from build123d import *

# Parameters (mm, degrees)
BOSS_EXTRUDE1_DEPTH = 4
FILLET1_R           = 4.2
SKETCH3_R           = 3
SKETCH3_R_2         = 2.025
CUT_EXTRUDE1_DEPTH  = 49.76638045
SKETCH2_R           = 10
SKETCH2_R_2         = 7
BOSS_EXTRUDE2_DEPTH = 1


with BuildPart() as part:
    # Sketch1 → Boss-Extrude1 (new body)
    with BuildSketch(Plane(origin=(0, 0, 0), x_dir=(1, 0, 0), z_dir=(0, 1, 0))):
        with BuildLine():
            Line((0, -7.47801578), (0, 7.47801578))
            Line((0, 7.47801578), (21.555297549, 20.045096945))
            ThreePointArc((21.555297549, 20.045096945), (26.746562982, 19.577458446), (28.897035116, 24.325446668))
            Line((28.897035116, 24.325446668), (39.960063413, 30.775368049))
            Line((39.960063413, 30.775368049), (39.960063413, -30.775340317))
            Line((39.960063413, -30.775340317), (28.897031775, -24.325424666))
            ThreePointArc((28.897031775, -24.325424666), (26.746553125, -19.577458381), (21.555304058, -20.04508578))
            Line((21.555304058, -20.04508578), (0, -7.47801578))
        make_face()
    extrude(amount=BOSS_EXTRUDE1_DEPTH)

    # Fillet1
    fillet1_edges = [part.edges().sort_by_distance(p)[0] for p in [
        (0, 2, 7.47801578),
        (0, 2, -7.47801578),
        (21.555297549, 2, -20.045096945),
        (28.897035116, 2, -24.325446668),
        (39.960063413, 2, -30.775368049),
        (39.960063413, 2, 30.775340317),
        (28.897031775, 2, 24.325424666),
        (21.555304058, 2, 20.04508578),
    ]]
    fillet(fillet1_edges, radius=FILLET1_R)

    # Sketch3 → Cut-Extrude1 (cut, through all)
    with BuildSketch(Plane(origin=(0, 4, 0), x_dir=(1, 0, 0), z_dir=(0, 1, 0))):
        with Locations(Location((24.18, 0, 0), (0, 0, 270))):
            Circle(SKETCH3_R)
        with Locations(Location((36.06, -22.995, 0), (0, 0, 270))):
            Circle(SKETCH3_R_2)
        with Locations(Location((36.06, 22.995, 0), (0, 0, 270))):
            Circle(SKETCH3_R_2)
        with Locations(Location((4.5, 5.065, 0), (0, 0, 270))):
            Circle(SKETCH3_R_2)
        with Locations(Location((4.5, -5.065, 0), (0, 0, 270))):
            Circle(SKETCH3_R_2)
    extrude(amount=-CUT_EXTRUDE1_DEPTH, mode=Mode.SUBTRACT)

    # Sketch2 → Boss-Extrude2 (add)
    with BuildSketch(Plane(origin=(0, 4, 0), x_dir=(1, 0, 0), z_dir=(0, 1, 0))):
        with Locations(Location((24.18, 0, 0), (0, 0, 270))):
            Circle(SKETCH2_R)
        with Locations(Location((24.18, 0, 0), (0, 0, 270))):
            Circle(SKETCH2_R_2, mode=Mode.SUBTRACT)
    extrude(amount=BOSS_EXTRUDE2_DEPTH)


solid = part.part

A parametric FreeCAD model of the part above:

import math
import FreeCAD as App
import Part
import Sketcher

V = App.Vector


def edges_at(feature, points):
    """Names of the edges that pass closest to the given points."""
    edges = feature.Shape.Edges
    near = lambda p: min(range(len(edges)), key=lambda i: edges[i].distToShape(Part.Vertex(*p))[0])
    return sorted({f"Edge{near(p) + 1}" for p in points})

doc = App.newDocument("Part")
body = doc.addObject("PartDesign::Body", "Body")

# Sketch on XZ plane
sketch1 = body.newObject("Sketcher::SketchObject", "Sketch")
sketch1.AttachmentSupport = (doc.getObject("XZ_Plane"), [""])
sketch1.MapMode = "FlatFace"
sketch1.addGeometry(Part.LineSegment(V(0, -7.5, 0), V(0, 7.5, 0)), False)
sketch1.addGeometry(Part.LineSegment(V(0, 7.5, 0), V(21.6, 20, 0)), False)
sketch1.addGeometry(Part.ArcOfCircle(Part.Circle(V(24.5, 23.5, 0), V(0, 0, 1), 4.5), math.radians(-131), math.radians(11)), False)
sketch1.addGeometry(Part.LineSegment(V(28.9, 24.3, 0), V(40, 30.8, 0)), False)
sketch1.addGeometry(Part.LineSegment(V(40, 30.8, 0), V(40, -30.8, 0)), False)
sketch1.addGeometry(Part.LineSegment(V(40, -30.8, 0), V(28.9, -24.3, 0)), False)
sketch1.addGeometry(Part.ArcOfCircle(Part.Circle(V(24.5, -23.5, 0), V(0, 0, 1), 4.5), math.radians(-11), math.radians(131)), False)
sketch1.addGeometry(Part.LineSegment(V(21.6, -20, 0), V(0, -7.5, 0)), False)
sketch1.addConstraint(Sketcher.Constraint("Coincident", 0, 2, 1, 1))
sketch1.addConstraint(Sketcher.Constraint("Coincident", 1, 2, 2, 1))
sketch1.addConstraint(Sketcher.Constraint("Coincident", 2, 2, 3, 1))
sketch1.addConstraint(Sketcher.Constraint("Coincident", 3, 2, 4, 1))
sketch1.addConstraint(Sketcher.Constraint("Coincident", 4, 2, 5, 1))
sketch1.addConstraint(Sketcher.Constraint("Coincident", 5, 2, 6, 1))
sketch1.addConstraint(Sketcher.Constraint("Coincident", 6, 2, 7, 1))
sketch1.addConstraint(Sketcher.Constraint("Coincident", 7, 2, 0, 1))
sketch1.addConstraint(Sketcher.Constraint("Vertical", 0))
sketch1.addConstraint(Sketcher.Constraint("Vertical", 4))
sketch1.addConstraint(Sketcher.Constraint("Equal", 2, 6))
sketch1.addConstraint(Sketcher.Constraint("Symmetric", 0, 2, 7, 2, -1, 1))
sketch1.addConstraint(Sketcher.Constraint("Symmetric", 2, 3, 6, 3, -1))
sketch1.addConstraint(Sketcher.Constraint("Parallel", 1, 3))
sketch1.addConstraint(Sketcher.Constraint("Parallel", 5, 7))
sketch1.addConstraint(Sketcher.Constraint("Equal", 3, 5))
sketch1.addConstraint(Sketcher.Constraint("Equal", 1, 7))
sketch1.addConstraint(Sketcher.Constraint("Radius", 2, 4.5))
sketch1.addConstraint(Sketcher.Constraint("DistanceX", 6, 3, 3, 2, 15.479999))
sketch1.addConstraint(Sketcher.Constraint("DistanceY", -1, 1, 2, 3, 23.465002))
sketch1.addConstraint(Sketcher.Constraint("Distance", 1, 24.9512))
sketch1.addConstraint(Sketcher.Constraint("DistanceY", 0, 1, 0, 2, 14.956032))
sketch1.addConstraint(Sketcher.Constraint("DistanceY", 4, 2, 4, 1, 61.550708))
sketch1.addConstraint(Sketcher.Constraint("DistanceY", 7, 2, 1, 2, 27.523102))
pad1 = body.newObject("PartDesign::Pad", "Pad")
pad1.Profile = sketch1
pad1.Length = 4
pad1.Reversed = True
doc.recompute()

fillet = body.newObject("PartDesign::Fillet", "Fillet")
fillet.Base = (pad1, edges_at(pad1, [
    (0, 2, 7.478),
    (0, 2, -7.478),
    (21.555, 2, -20.045),
    (28.897, 2, -24.325),
    (39.96, 2, -30.775),
    (39.96, 2, 30.775),
    (28.897, 2, 24.325),
    (21.555, 2, 20.045),
]))
fillet.Radius = 4.2

# Sketch on XZ plane
sketch2 = body.newObject("Sketcher::SketchObject", "Sketch001")
sketch2.AttachmentSupport = (doc.getObject("XZ_Plane"), [""])
sketch2.MapMode = "FlatFace"
sketch2.AttachmentOffset = App.Placement(V(0, 0, -4), App.Rotation())
sketch2.addGeometry(Part.Circle(V(24.2, 0, 0), V(0, 0, 1), 3), False)
sketch2.addGeometry(Part.Circle(V(36.1, 23, 0), V(0, 0, 1), 2), False)
sketch2.addGeometry(Part.Circle(V(36.1, -23, 0), V(0, 0, 1), 2), False)
sketch2.addGeometry(Part.Circle(V(4.5, -5.1, 0), V(0, 0, 1), 2), False)
sketch2.addGeometry(Part.Circle(V(4.5, 5.1, 0), V(0, 0, 1), 2), False)
sketch2.addConstraint(Sketcher.Constraint("Equal", 1, 2))
sketch2.addConstraint(Sketcher.Constraint("Equal", 2, 3))
sketch2.addConstraint(Sketcher.Constraint("Equal", 3, 4))
sketch2.addConstraint(Sketcher.Constraint("Symmetric", 1, 3, 2, 3, -1))
sketch2.addConstraint(Sketcher.Constraint("Symmetric", 3, 3, 4, 3, -1))
sketch2.addConstraint(Sketcher.Constraint("PointOnObject", 0, 3, -1))
sketch2.addConstraint(Sketcher.Constraint("Diameter", 0, 6.0))
sketch2.addConstraint(Sketcher.Constraint("Diameter", 1, 4.05))
sketch2.addConstraint(Sketcher.Constraint("DistanceX", -1, 1, 3, 3, 4.5))
sketch2.addConstraint(Sketcher.Constraint("DistanceX", -1, 1, 0, 3, 24.18))
sketch2.addConstraint(Sketcher.Constraint("DistanceX", -1, 1, 1, 3, 36.06))
sketch2.addConstraint(Sketcher.Constraint("DistanceY", 2, 3, 1, 3, 45.99))
sketch2.addConstraint(Sketcher.Constraint("DistanceY", 2, 3, 3, 3, 17.93))
pocket1 = body.newObject("PartDesign::Pocket", "Pocket")
pocket1.Profile = sketch2
pocket1.Type = "ThroughAll"
pocket1.Reversed = True

# Sketch on XZ plane
sketch3 = body.newObject("Sketcher::SketchObject", "Sketch002")
sketch3.AttachmentSupport = (doc.getObject("XZ_Plane"), [""])
sketch3.MapMode = "FlatFace"
sketch3.AttachmentOffset = App.Placement(V(0, 0, -4), App.Rotation())
sketch3.addGeometry(Part.Circle(V(24, 0, 0), V(0, 0, 1), 10), False)
sketch3.addGeometry(Part.Circle(V(24, 0, 0), V(0, 0, 1), 7), False)
sketch3.addConstraint(Sketcher.Constraint("Coincident", 1, 3, 0, 3))
sketch3.addConstraint(Sketcher.Constraint("PointOnObject", 0, 3, -1))
sketch3.addConstraint(Sketcher.Constraint("Diameter", 0, 20.0))
sketch3.addConstraint(Sketcher.Constraint("Diameter", 1, 14.0))
sketch3.addConstraint(Sketcher.Constraint("DistanceX", -1, 1, 0, 3, 24.18))
pad2 = body.newObject("PartDesign::Pad", "Pad001")
pad2.Profile = sketch3
pad2.Length = 1
pad2.Reversed = True

doc.recompute()
